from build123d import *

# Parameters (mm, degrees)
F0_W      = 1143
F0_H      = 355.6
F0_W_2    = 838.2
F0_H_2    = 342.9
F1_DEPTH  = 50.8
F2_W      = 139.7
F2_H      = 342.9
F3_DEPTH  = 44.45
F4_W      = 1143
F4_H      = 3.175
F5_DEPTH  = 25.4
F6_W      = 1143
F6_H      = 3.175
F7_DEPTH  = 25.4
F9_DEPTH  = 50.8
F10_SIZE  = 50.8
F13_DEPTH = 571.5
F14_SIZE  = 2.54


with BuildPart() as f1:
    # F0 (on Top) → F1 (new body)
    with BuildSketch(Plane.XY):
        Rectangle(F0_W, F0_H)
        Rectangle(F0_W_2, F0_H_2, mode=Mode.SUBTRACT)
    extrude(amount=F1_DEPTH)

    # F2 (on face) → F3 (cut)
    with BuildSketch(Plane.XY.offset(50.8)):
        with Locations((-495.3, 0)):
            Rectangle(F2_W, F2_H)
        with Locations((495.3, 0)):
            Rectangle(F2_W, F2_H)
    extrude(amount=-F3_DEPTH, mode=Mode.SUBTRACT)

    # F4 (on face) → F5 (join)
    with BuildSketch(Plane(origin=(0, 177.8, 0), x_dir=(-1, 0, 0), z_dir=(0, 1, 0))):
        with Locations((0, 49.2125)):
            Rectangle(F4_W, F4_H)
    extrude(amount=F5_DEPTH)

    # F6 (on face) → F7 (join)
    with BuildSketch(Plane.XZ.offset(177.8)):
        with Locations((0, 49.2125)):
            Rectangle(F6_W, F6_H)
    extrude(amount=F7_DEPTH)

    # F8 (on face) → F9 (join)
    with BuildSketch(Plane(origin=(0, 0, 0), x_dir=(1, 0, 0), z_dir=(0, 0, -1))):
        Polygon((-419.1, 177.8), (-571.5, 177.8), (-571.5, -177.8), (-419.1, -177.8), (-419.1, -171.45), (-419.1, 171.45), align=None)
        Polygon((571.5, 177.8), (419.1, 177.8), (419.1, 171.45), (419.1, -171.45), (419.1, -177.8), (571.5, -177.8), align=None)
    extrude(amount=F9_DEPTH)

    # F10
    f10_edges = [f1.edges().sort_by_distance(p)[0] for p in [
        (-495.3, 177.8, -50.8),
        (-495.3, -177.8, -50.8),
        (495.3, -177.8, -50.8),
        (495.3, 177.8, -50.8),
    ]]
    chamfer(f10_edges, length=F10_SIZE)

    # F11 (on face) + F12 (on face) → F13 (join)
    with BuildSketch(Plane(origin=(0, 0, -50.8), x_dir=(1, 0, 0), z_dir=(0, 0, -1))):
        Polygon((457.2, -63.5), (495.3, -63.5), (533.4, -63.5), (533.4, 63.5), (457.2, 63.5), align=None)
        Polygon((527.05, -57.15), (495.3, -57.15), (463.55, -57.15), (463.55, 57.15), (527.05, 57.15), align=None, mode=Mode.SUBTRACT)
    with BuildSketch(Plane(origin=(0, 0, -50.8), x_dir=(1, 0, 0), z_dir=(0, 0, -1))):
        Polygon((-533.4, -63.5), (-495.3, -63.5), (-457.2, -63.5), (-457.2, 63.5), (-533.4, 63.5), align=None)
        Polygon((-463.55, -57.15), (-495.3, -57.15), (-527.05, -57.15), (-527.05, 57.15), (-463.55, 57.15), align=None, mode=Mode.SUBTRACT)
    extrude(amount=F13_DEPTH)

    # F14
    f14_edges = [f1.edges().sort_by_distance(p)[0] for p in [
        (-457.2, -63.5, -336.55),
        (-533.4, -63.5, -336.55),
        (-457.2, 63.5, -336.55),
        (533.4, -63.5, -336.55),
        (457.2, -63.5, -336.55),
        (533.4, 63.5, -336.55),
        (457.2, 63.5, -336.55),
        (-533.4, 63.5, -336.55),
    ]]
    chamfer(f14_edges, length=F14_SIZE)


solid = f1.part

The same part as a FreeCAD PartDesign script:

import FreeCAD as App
import Part
import Sketcher
from FreeCAD import Vector
Q = App.Units.Quantity


def edges_at(feature, points):
    """Names of the edges that pass closest to the given points."""
    edges = feature.Shape.Edges
    near = lambda p: min(range(len(edges)), key=lambda i: edges[i].distToShape(Part.Vertex(*p))[0])
    return sorted({f"Edge{near(p) + 1}" for p in points})

doc = App.newDocument("Part")
body = doc.addObject("PartDesign::Body", "Body")

# Sketch on XY plane
sketch1 = doc.addObject("Sketcher::SketchObject", "Sketch")
body.addObject(sketch1)
sketch1.AttachmentSupport = (doc.XY_Plane, [""])
sketch1.MapMode = "FlatFace"
sketch1.addGeometry(Part.LineSegment(Vector(-571.5, 177.8, 0), Vector(-571.5, -177.8, 0)), False)
sketch1.addGeometry(Part.LineSegment(Vector(-571.5, -177.8, 0), Vector(571.5, -177.8, 0)), False)
sketch1.addGeometry(Part.LineSegment(Vector(571.5, -177.8, 0), Vector(571.5, 177.8, 0)), False)
sketch1.addGeometry(Part.LineSegment(Vector(571.5, 177.8, 0), Vector(-571.5, 177.8, 0)), False)
sketch1.addGeometry(Part.LineSegment(Vector(419.1, -171.45, 0), Vector(-419.1, -171.45, 0)), False)
sketch1.addGeometry(Part.LineSegment(Vector(-419.1, -171.45, 0), Vector(-419.1, 171.45, 0)), False)
sketch1.addGeometry(Part.LineSegment(Vector(-419.1, 171.45, 0), Vector(419.1, 171.45, 0)), False)
sketch1.addGeometry(Part.LineSegment(Vector(419.1, 171.45, 0), Vector(419.1, -171.45, 0)), False)
sketch1.addConstraint(Sketcher.Constraint("Coincident", 0, 2, 1, 1))
sketch1.addConstraint(Sketcher.Constraint("Coincident", 1, 2, 2, 1))
sketch1.addConstraint(Sketcher.Constraint("Coincident", 2, 2, 3, 1))
sketch1.addConstraint(Sketcher.Constraint("Coincident", 3, 2, 0, 1))
sketch1.addConstraint(Sketcher.Constraint("Coincident", 4, 2, 5, 1))
sketch1.addConstraint(Sketcher.Constraint("Coincident", 5, 2, 6, 1))
sketch1.addConstraint(Sketcher.Constraint("Coincident", 6, 2, 7, 1))
sketch1.addConstraint(Sketcher.Constraint("Coincident", 7, 2, 4, 1))
sketch1.addConstraint(Sketcher.Constraint("Vertical", 0))
sketch1.addConstraint(Sketcher.Constraint("Horizontal", 1))
sketch1.addConstraint(Sketcher.Constraint("Vertical", 2))
sketch1.addConstraint(Sketcher.Constraint("Horizontal", 3))
sketch1.addConstraint(Sketcher.Constraint("Horizontal", 4))
sketch1.addConstraint(Sketcher.Constraint("Vertical", 5))
sketch1.addConstraint(Sketcher.Constraint("Horizontal", 6))
sketch1.addConstraint(Sketcher.Constraint("Vertical", 7))
sketch1.addConstraint(Sketcher.Constraint("Symmetric", 0, 2, 2, 2, -1, 1))
sketch1.addConstraint(Sketcher.Constraint("Symmetric", 4, 2, 6, 2, -1, 1))
sketch1.addConstraint(Sketcher.Constraint("DistanceX", 1, 1, 1, 2, Q("45 in")))
sketch1.addConstraint(Sketcher.Constraint("DistanceX", 4, 2, 4, 1, Q("33 in")))
sketch1.addConstraint(Sketcher.Constraint("DistanceY", 0, 2, 0, 1, Q("14 in")))
sketch1.addConstraint(Sketcher.Constraint("DistanceY", 5, 1, 5, 2, Q("13.5 in")))
pad1 = doc.addObject("PartDesign::Pad", "Pad")
body.addObject(pad1)
pad1.Profile = sketch1
pad1.Length = Q("2 in")

# Sketch on XY plane
sketch2 = doc.addObject("Sketcher::SketchObject", "Sketch001")
body.addObject(sketch2)
sketch2.AttachmentSupport = (doc.XY_Plane, [""])
sketch2.MapMode = "FlatFace"
sketch2.AttachmentOffset = App.Placement(Vector(0, 0, 2 * 25.4), App.Rotation())
sketch2.addGeometry(Part.LineSegment(Vector(-565.15, 171.45, 0), Vector(-565.15, -171.45, 0)), False)
sketch2.addGeometry(Part.LineSegment(Vector(-565.15, -171.45, 0), Vector(-425.45, -171.45, 0)), False)
sketch2.addGeometry(Part.LineSegment(Vector(-425.45, -171.45, 0), Vector(-425.45, 171.45, 0)), False)
sketch2.addGeometry(Part.LineSegment(Vector(-425.45, 171.45, 0), Vector(-565.15, 171.45, 0)), False)
sketch2.addGeometry(Part.LineSegment(Vector(425.45, 171.45, 0), Vector(425.45, -171.45, 0)), False)
sketch2.addGeometry(Part.LineSegment(Vector(425.45, -171.45, 0), Vector(565.15, -171.45, 0)), False)
sketch2.addGeometry(Part.LineSegment(Vector(565.15, -171.45, 0), Vector(565.15, 171.45, 0)), False)
sketch2.addGeometry(Part.LineSegment(Vector(565.15, 171.45, 0), Vector(425.45, 171.45, 0)), False)
sketch2.addConstraint(Sketcher.Constraint("Coincident", 0, 2, 1, 1))
sketch2.addConstraint(Sketcher.Constraint("Coincident", 1, 2, 2, 1))
sketch2.addConstraint(Sketcher.Constraint("Coincident", 2, 2, 3, 1))
sketch2.addConstraint(Sketcher.Constraint("Coincident", 3, 2, 0, 1))
sketch2.addConstraint(Sketcher.Constraint("Coincident", 4, 2, 5, 1))
sketch2.addConstraint(Sketcher.Constraint("Coincident", 5, 2, 6, 1))
sketch2.addConstraint(Sketcher.Constraint("Coincident", 6, 2, 7, 1))
sketch2.addConstraint(Sketcher.Constraint("Coincident", 7, 2, 4, 1))
sketch2.addConstraint(Sketcher.Constraint("Vertical", 0))
sketch2.addConstraint(Sketcher.Constraint("Horizontal", 1))
sketch2.addConstraint(Sketcher.Constraint("Vertical", 2))
sketch2.addConstraint(Sketcher.Constraint("Horizontal", 3))
sketch2.addConstraint(Sketcher.Constraint("Vertical", 4))
sketch2.addConstraint(Sketcher.Constraint("Horizontal", 5))
sketch2.addConstraint(Sketcher.Constraint("Vertical", 6))
sketch2.addConstraint(Sketcher.Constraint("Horizontal", 7))
sketch2.addConstraint(Sketcher.Constraint("Symmetric", 2, 2, 4, 2, -1, 1))
sketch2.addConstraint(Sketcher.Constraint("Symmetric", 0, 2, 6, 2, -1, 1))
sketch2.addConstraint(Sketcher.Constraint("Horizontal", 1, 2, 4, 2))
sketch2.addConstraint(Sketcher.Constraint("DistanceX", 1, 1, 1, 2, Q("5.5 in")))
sketch2.addConstraint(Sketcher.Constraint("DistanceY", 0, 2, 0, 1, Q("13.5 in")))
sketch2.addConstraint(Sketcher.Constraint("DistanceX", 0, 2, 4, 2, Q("39 in")))
pocket1 = doc.addObject("PartDesign::Pocket", "Pocket")
body.addObject(pocket1)
pocket1.Profile = sketch2
pocket1.Length = Q("1.75 in")

# Sketch on XZ plane
sketch3 = doc.addObject("Sketcher::SketchObject", "Sketch002")
body.addObject(sketch3)
sketch3.AttachmentSupport = (doc.XZ_Plane, [""])
sketch3.MapMode = "FlatFace"
sketch3.AttachmentOffset = App.Placement(Vector(0, 0, -7 * 25.4), App.Rotation())
sketch3.addGeometry(Part.LineSegment(Vector(571.5, 50.8, 0), Vector(571.5, 47.625, 0)), False)
sketch3.addGeometry(Part.LineSegment(Vector(571.5, 47.625, 0), Vector(-571.5, 47.625, 0)), False)
sketch3.addGeometry(Part.LineSegment(Vector(-571.5, 47.625, 0), Vector(-571.5, 50.8, 0)), False)
sketch3.addGeometry(Part.LineSegment(Vector(-571.5, 50.8, 0), Vector(571.5, 50.8, 0)), False)
sketch3.addConstraint(Sketcher.Constraint("Coincident", 0, 2, 1, 1))
sketch3.addConstraint(Sketcher.Constraint("Coincident", 1, 2, 2, 1))
sketch3.addConstraint(Sketcher.Constraint("Coincident", 2, 2, 3, 1))
sketch3.addConstraint(Sketcher.Constraint("Coincident", 3, 2, 0, 1))
sketch3.addConstraint(Sketcher.Constraint("Vertical", 0))
sketch3.addConstraint(Sketcher.Constraint("Horizontal", 1))
sketch3.addConstraint(Sketcher.Constraint("Vertical", 2))
sketch3.addConstraint(Sketcher.Constraint("Horizontal", 3))
sketch3.addConstraint(Sketcher.Constraint("DistanceX", 1, 2, 1, 1, Q("45 in")))
sketch3.addConstraint(Sketcher.Constraint("DistanceY", -1, 1, 2, 2, Q("2 in")))
sketch3.addConstraint(Sketcher.Constraint("DistanceX", -1, 1, 0, 2, Q("22.5 in")))
sketch3.addConstraint(Sketcher.Constraint("DistanceY", 0, 2, 0, 1, Q("0.125 in")))
pad2 = doc.addObject("PartDesign::Pad", "Pad001")
body.addObject(pad2)
pad2.Profile = sketch3
pad2.Length = Q("1 in")
pad2.Reversed = True

# Sketch on XZ plane
sketch4 = doc.addObject("Sketcher::SketchObject", "Sketch003")
body.addObject(sketch4)
sketch4.AttachmentSupport = (doc.XZ_Plane, [""])
sketch4.MapMode = "FlatFace"
sketch4.AttachmentOffset = App.Placement(Vector(0, 0, 7 * 25.4), App.Rotation())
sketch4.addGeometry(Part.LineSegment(Vector(-571.5, 50.8, 0), Vector(-571.5, 47.625, 0)), False)
sketch4.addGeometry(Part.LineSegment(Vector(-571.5, 47.625, 0), Vector(571.5, 47.625, 0)), False)
sketch4.addGeometry(Part.LineSegment(Vector(571.5, 47.625, 0), Vector(571.5, 50.8, 0)), False)
sketch4.addGeometry(Part.LineSegment(Vector(571.5, 50.8, 0), Vector(-571.5, 50.8, 0)), False)
sketch4.addConstraint(Sketcher.Constraint("Coincident", 0, 2, 1, 1))
sketch4.addConstraint(Sketcher.Constraint("Coincident", 1, 2, 2, 1))
sketch4.addConstraint(Sketcher.Constraint("Coincident", 2, 2, 3, 1))
sketch4.addConstraint(Sketcher.Constraint("Coincident", 3, 2, 0, 1))
sketch4.addConstraint(Sketcher.Constraint("Vertical", 0))
sketch4.addConstraint(Sketcher.Constraint("Horizontal", 1))
sketch4.addConstraint(Sketcher.Constraint("Vertical", 2))
sketch4.addConstraint(Sketcher.Constraint("Horizontal", 3))
sketch4.addConstraint(Sketcher.Constraint("DistanceX", 1, 1, 1, 2, Q("45 in")))
sketch4.addConstraint(Sketcher.Constraint("DistanceY", -1, 1, 2, 2, Q("2 in")))
sketch4.addConstraint(Sketcher.Constraint("DistanceX", 0, 2, -1, 1, Q("22.5 in")))
sketch4.addConstraint(Sketcher.Constraint("DistanceY", 0, 2, 0, 1, Q("0.125 in")))
pad3 = doc.addObject("PartDesign::Pad", "Pad002")
body.addObject(pad3)
pad3.Profile = sketch4
pad3.Length = Q("1 in")

# Sketch on XY plane
sketch5 = doc.addObject("Sketcher::SketchObject", "Sketch004")
body.addObject(sketch5)
sketch5.AttachmentSupport = (doc.XY_Plane, [""])
sketch5.MapMode = "FlatFace"
sketch5.addGeometry(Part.LineSegment(Vector(-419.1, -177.8, 0), Vector(-571.5, -177.8, 0)), False)
sketch5.addGeometry(Part.LineSegment(Vector(-571.5, -177.8, 0), Vector(-571.5, 177.8, 0)), False)
sketch5.addGeometry(Part.LineSegment(Vector(-571.5, 177.8, 0), Vector(-419.1, 177.8, 0)), False)
sketch5.addGeometry(Part.LineSegment(Vector(-419.1, 177.8, 0), Vector(-419.1, -177.8, 0)), False)
sketch5.addGeometry(Part.LineSegment(Vector(571.5, -177.8, 0), Vector(419.1, -177.8, 0)), False)
sketch5.addGeometry(Part.LineSegment(Vector(419.1, -177.8, 0), Vector(419.1, 177.8, 0)), False)
sketch5.addGeometry(Part.LineSegment(Vector(419.1, 177.8, 0), Vector(571.5, 177.8, 0)), False)
sketch5.addGeometry(Part.LineSegment(Vector(571.5, 177.8, 0), Vector(571.5, -177.8, 0)), False)
sketch5.addConstraint(Sketcher.Constraint("Coincident", 0, 2, 1, 1))
sketch5.addConstraint(Sketcher.Constraint("Coincident", 1, 2, 2, 1))
sketch5.addConstraint(Sketcher.Constraint("Coincident", 2, 2, 3, 1))
sketch5.addConstraint(Sketcher.Constraint("Coincident", 3, 2, 0, 1))
sketch5.addConstraint(Sketcher.Constraint("Coincident", 4, 2, 5, 1))
sketch5.addConstraint(Sketcher.Constraint("Coincident", 5, 2, 6, 1))
sketch5.addConstraint(Sketcher.Constraint("Coincident", 6, 2, 7, 1))
sketch5.addConstraint(Sketcher.Constraint("Coincident", 7, 2, 4, 1))
sketch5.addConstraint(Sketcher.Constraint("Horizontal", 0))
sketch5.addConstraint(Sketcher.Constraint("Vertical", 1))
sketch5.addConstraint(Sketcher.Constraint("Horizontal", 2))
sketch5.addConstraint(Sketcher.Constraint("Vertical", 3))
sketch5.addConstraint(Sketcher.Constraint("Horizontal", 4))
sketch5.addConstraint(Sketcher.Constraint("Vertical", 5))
sketch5.addConstraint(Sketcher.Constraint("Horizontal", 6))
sketch5.addConstraint(Sketcher.Constraint("Vertical", 7))
sketch5.addConstraint(Sketcher.Constraint("Symmetric", 2, 2, 4, 2, -1, 1))
sketch5.addConstraint(Sketcher.Constraint("Symmetric", 0, 2, 6, 2, -1, 1))
sketch5.addConstraint(Sketcher.Constraint("Horizontal", 3, 2, 4, 2))
sketch5.addConstraint(Sketcher.Constraint("DistanceX", 0, 2, 0, 1, Q("6 in")))
sketch5.addConstraint(Sketcher.Constraint("DistanceY", 1, 1, 1, 2, Q("14 in")))
sketch5.addConstraint(Sketcher.Constraint("DistanceX", 3, 2, 4, 2, Q("33 in")))
pad4 = doc.addObject("PartDesign::Pad", "Pad003")
body.addObject(pad4)
pad4.Profile = sketch5
pad4.Length = Q("2 in")
pad4.Reversed = True
doc.recompute()

chamfer = doc.addObject("PartDesign::Chamfer", "Chamfer")
body.addObject(chamfer)
chamfer.Base = (pad4, edges_at(pad4, [
    (-495.3, 177.8, -50.8),
    (-495.3, -177.8, -50.8),
    (495.3, -177.8, -50.8),
    (495.3, 177.8, -50.8),
]))
chamfer.Size = Q("2 in")

# Sketch on XY plane
sketch6 = doc.addObject("Sketcher::SketchObject", "Sketch005")
body.addObject(sketch6)
sketch6.AttachmentSupport = (doc.XY_Plane, [""])
sketch6.MapMode = "FlatFace"
sketch6.AttachmentOffset = App.Placement(Vector(0, 0, -2 * 25.4), App.Rotation())
sketch6.addGeometry(Part.LineSegment(Vector(457.2, 63.5, 0), Vector(533.4, 63.5, 0)), False)
sketch6.addGeometry(Part.LineSegment(Vector(533.4, 63.5, 0), Vector(533.4, -63.5, 0)), False)
sketch6.addGeometry(Part.LineSegment(Vector(533.4, -63.5, 0), Vector(457.2, -63.5, 0)), False)
sketch6.addGeometry(Part.LineSegment(Vector(457.2, -63.5, 0), Vector(457.2, 63.5, 0)), False)
sketch6.addGeometry(Part.LineSegment(Vector(527.05, -57.15, 0), Vector(527.05, 57.15, 0)), False)
sketch6.addGeometry(Part.LineSegment(Vector(527.05, 57.15, 0), Vector(463.55, 57.15, 0)), False)
sketch6.addGeometry(Part.LineSegment(Vector(463.55, 57.15, 0), Vector(463.55, -57.15, 0)), False)
sketch6.addGeometry(Part.LineSegment(Vector(463.55, -57.15, 0), Vector(527.05, -57.15, 0)), False)
sketch6.addGeometry(Part.LineSegment(Vector(-533.4, 63.5, 0), Vector(-457.2, 63.5, 0)), False)
sketch6.addGeometry(Part.LineSegment(Vector(-457.2, 63.5, 0), Vector(-457.2, -63.5, 0)), False)
sketch6.addGeometry(Part.LineSegment(Vector(-457.2, -63.5, 0), Vector(-533.4, -63.5, 0)), False)
sketch6.addGeometry(Part.LineSegment(Vector(-533.4, -63.5, 0), Vector(-533.4, 63.5, 0)), False)
sketch6.addGeometry(Part.LineSegment(Vector(-463.55, -57.15, 0), Vector(-463.55, 57.15, 0)), False)
sketch6.addGeometry(Part.LineSegment(Vector(-463.55, 57.15, 0), Vector(-527.05, 57.15, 0)), False)
sketch6.addGeometry(Part.LineSegment(Vector(-527.05, 57.15, 0), Vector(-527.05, -57.15, 0)), False)
sketch6.addGeometry(Part.LineSegment(Vector(-527.05, -57.15, 0), Vector(-463.55, -57.15, 0)), False)
sketch6.addConstraint(Sketcher.Constraint("Coincident", 0, 2, 1, 1))
sketch6.addConstraint(Sketcher.Constraint("Coincident", 1, 2, 2, 1))
sketch6.addConstraint(Sketcher.Constraint("Coincident", 2, 2, 3, 1))
sketch6.addConstraint(Sketcher.Constraint("Coincident", 3, 2, 0, 1))
sketch6.addConstraint(Sketcher.Constraint("Coincident", 4, 2, 5, 1))
sketch6.addConstraint(Sketcher.Constraint("Coincident", 5, 2, 6, 1))
sketch6.addConstraint(Sketcher.Constraint("Coincident", 6, 2, 7, 1))
sketch6.addConstraint(Sketcher.Constraint("Coincident", 7, 2, 4, 1))
sketch6.addConstraint(Sketcher.Constraint("Coincident", 8, 2, 9, 1))
sketch6.addConstraint(Sketcher.Constraint("Coincident", 9, 2, 10, 1))
sketch6.addConstraint(Sketcher.Constraint("Coincident", 10, 2, 11, 1))
sketch6.addConstraint(Sketcher.Constraint("Coincident", 11, 2, 8, 1))
sketch6.addConstraint(Sketcher.Constraint("Coincident", 12, 2, 13, 1))
sketch6.addConstraint(Sketcher.Constraint("Coincident", 13, 2, 14, 1))
sketch6.addConstraint(Sketcher.Constraint("Coincident", 14, 2, 15, 1))
sketch6.addConstraint(Sketcher.Constraint("Coincident", 15, 2, 12, 1))
sketch6.addConstraint(Sketcher.Constraint("Horizontal", 0))
sketch6.addConstraint(Sketcher.Constraint("Vertical", 1))
sketch6.addConstraint(Sketcher.Constraint("Horizontal", 2))
sketch6.addConstraint(Sketcher.Constraint("Vertical", 3))
sketch6.addConstraint(Sketcher.Constraint("Vertical", 4))
sketch6.addConstraint(Sketcher.Constraint("Horizontal", 5))
sketch6.addConstraint(Sketcher.Constraint("Vertical", 6))
sketch6.addConstraint(Sketcher.Constraint("Horizontal", 7))
sketch6.addConstraint(Sketcher.Constraint("Horizontal", 8))
sketch6.addConstraint(Sketcher.Constraint("Vertical", 9))
sketch6.addConstraint(Sketcher.Constraint("Horizontal", 10))
sketch6.addConstraint(Sketcher.Constraint("Vertical", 11))
sketch6.addConstraint(Sketcher.Constraint("Vertical", 12))
sketch6.addConstraint(Sketcher.Constraint("Horizontal", 13))
sketch6.addConstraint(Sketcher.Constraint("Vertical", 14))
sketch6.addConstraint(Sketcher.Constraint("Horizontal", 15))
sketch6.addConstraint(Sketcher.Constraint("Symmetric", 2, 2, 8, 2, -1, 1))
sketch6.addConstraint(Sketcher.Constraint("Symmetric", 0, 2, 10, 2, -1, 1))
sketch6.addConstraint(Sketcher.Constraint("Symmetric", 6, 2, 12, 2, -1, 1))
sketch6.addConstraint(Sketcher.Constraint("Symmetric", 4, 2, 14, 2, -1, 1))
sketch6.addConstraint(Sketcher.Constraint("Horizontal", 3, 2, 8, 2))
sketch6.addConstraint(Sketcher.Constraint("Horizontal", 5, 2, 12, 2))
sketch6.addConstraint(Sketcher.Constraint("DistanceX", 0, 1, 0, 2, Q("3 in")))
sketch6.addConstraint(Sketcher.Constraint("DistanceY", 1, 2, 1, 1, Q("5 in")))
sketch6.addConstraint(Sketcher.Constraint("DistanceX", 5, 2, 5, 1, Q("2.5 in")))
sketch6.addConstraint(Sketcher.Constraint("DistanceY", 4, 1, 4, 2, Q("4.5 in")))
sketch6.addConstraint(Sketcher.Constraint("DistanceX", -1, 1, 0, 2, Q("21 in")))
sketch6.addConstraint(Sketcher.Constraint("DistanceX", -1, 1, 4, 2, Q("20.75 in")))
pad5 = doc.addObject("PartDesign::Pad", "Pad004")
body.addObject(pad5)
pad5.Profile = sketch6
pad5.Length = Q("22.5 in")
pad5.Reversed = True
doc.recompute()

chamfer2 = doc.addObject("PartDesign::Chamfer", "Chamfer001")
body.addObject(chamfer2)
chamfer2.Base = (pad5, edges_at(pad5, [
    (-457.2, -63.5, -336.55),
    (-533.4, -63.5, -336.55),
    (-457.2, 63.5, -336.55),
    (533.4, -63.5, -336.55),
    (457.2, -63.5, -336.55),
    (533.4, 63.5, -336.55),
    (457.2, 63.5, -336.55),
    (-533.4, 63.5, -336.55),
]))
chamfer2.Size = Q("0.1 in")

doc.recompute()
